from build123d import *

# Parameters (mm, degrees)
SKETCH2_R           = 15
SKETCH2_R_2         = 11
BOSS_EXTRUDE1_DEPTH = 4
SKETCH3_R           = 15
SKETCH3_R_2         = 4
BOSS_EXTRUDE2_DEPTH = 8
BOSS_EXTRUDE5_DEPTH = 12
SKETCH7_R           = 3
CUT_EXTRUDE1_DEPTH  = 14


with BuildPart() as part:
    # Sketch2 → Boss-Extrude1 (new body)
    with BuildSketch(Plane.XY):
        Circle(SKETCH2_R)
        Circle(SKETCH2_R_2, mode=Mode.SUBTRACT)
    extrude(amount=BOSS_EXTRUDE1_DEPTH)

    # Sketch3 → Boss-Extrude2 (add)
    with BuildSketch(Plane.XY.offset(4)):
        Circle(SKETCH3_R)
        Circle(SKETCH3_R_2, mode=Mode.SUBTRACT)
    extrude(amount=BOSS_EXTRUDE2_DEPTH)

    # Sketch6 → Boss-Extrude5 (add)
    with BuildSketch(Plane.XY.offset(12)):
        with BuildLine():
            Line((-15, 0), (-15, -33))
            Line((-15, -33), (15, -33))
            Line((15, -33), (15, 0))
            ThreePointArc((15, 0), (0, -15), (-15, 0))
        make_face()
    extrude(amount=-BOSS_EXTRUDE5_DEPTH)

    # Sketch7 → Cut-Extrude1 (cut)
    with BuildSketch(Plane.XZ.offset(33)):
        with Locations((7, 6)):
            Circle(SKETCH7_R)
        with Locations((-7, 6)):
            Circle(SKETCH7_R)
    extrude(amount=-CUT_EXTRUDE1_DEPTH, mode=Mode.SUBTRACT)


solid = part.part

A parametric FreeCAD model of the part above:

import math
import FreeCAD as App
import Part
import Sketcher
from FreeCAD import Vector
Q = App.Units.Quantity

doc = App.newDocument("Part")
body = doc.addObject("PartDesign::Body", "Body")

# Sketch on XY plane
sketch1 = body.newObject("Sketcher::SketchObject", "Sketch")
sketch1.AttachmentSupport = (doc.getObject("XY_Plane"), [""])
sketch1.MapMode = "FlatFace"
sketch1.addGeometry([
    Part.Circle(Vector(0, 0, 0), Vector(0, 0, 1), 15),
    Part.Circle(Vector(0, 0, 0), Vector(0, 0, 1), 11),
], False)
sketch1.addConstraint([
    Sketcher.Constraint("Coincident", 0, 3, -1, 1),
    Sketcher.Constraint("Coincident", 1, 3, -1, 1),
    Sketcher.Constraint("Diameter", 0, Q("30 mm")),
    Sketcher.Constraint("Diameter", 1, Q("22 mm")),
])
pad1 = body.newObject("PartDesign::Pad", "Pad")
pad1.Profile = sketch1
pad1.Length = 4

# Sketch on XY plane
sketch2 = body.newObject("Sketcher::SketchObject", "Sketch001")
sketch2.AttachmentSupport = (doc.getObject("XY_Plane"), [""])
sketch2.MapMode = "FlatFace"
sketch2.AttachmentOffset = App.Placement(Vector(0, 0, 4), App.Rotation())
sketch2.addGeometry([
    Part.Circle(Vector(0, 0, 0), Vector(0, 0, 1), 15),
    Part.Circle(Vector(0, 0, 0), Vector(0, 0, 1), 4),
], False)
sketch2.addConstraint([
    Sketcher.Constraint("Coincident", 0, 3, -1, 1),
    Sketcher.Constraint("Coincident", 1, 3, -1, 1),
    Sketcher.Constraint("Diameter", 0, Q("30 mm")),
    Sketcher.Constraint("Diameter", 1, Q("8 mm")),
])
pad2 = body.newObject("PartDesign::Pad", "Pad001")
pad2.Profile = sketch2
pad2.Length = 8

# Sketch on XY plane
sketch3 = body.newObject("Sketcher::SketchObject", "Sketch002")
sketch3.AttachmentSupport = (doc.getObject("XY_Plane"), [""])
sketch3.MapMode = "FlatFace"
sketch3.AttachmentOffset = App.Placement(Vector(0, 0, 12), App.Rotation())
sketch3.addGeometry([
    Part.LineSegment(Vector(-15, 0, 0), Vector(-15, -33, 0)),
    Part.LineSegment(Vector(-15, -33, 0), Vector(15, -33, 0)),
    Part.LineSegment(Vector(15, -33, 0), Vector(15, 0, 0)),
    Part.ArcOfCircle(Part.Circle(Vector(0, 0, 0), Vector(0, 0, 1), 15), math.radians(180), math.radians(360)),
], False)
sketch3.addConstraint([
    Sketcher.Constraint("Coincident", 0, 2, 1, 1),
    Sketcher.Constraint("Coincident", 1, 2, 2, 1),
    Sketcher.Constraint("Tangent", 2, 2, 3, 2),
    Sketcher.Constraint("Tangent", 3, 1, 0, 1),
    Sketcher.Constraint("Vertical", 0),
    Sketcher.Constraint("Horizontal", 1),
    Sketcher.Constraint("Vertical", 2),
    Sketcher.Constraint("Coincident", 3, 3, -1, 1),
    Sketcher.Constraint("Radius", 3, Q("15 mm")),
    Sketcher.Constraint("DistanceY", 0, 2, 0, 1, Q("33 mm")),
])
pad3 = body.newObject("PartDesign::Pad", "Pad002")
pad3.Profile = sketch3
pad3.Length = 12
pad3.Reversed = True

# Sketch on XZ plane
sketch4 = body.newObject("Sketcher::SketchObject", "Sketch003")
sketch4.AttachmentSupport = (doc.getObject("XZ_Plane"), [""])
sketch4.MapMode = "FlatFace"
sketch4.AttachmentOffset = App.Placement(Vector(0, 0, 33), App.Rotation())
sketch4.addGeometry([
    Part.Circle(Vector(7, 6, 0), Vector(0, 0, 1), 3),
    Part.Circle(Vector(-7, 6, 0), Vector(0, 0, 1), 3),
], False)
sketch4.addConstraint([
    Sketcher.Constraint("Equal", 0, 1),
    Sketcher.Constraint("Symmetric", 0, 3, 1, 3, -2),
    Sketcher.Constraint("Diameter", 0, Q("6 mm")),
    Sketcher.Constraint("DistanceX", -1, 1, 0, 3, Q("7 mm")),
    Sketcher.Constraint("DistanceY", -1, 1, 0, 3, Q("6 mm")),
])
pocket1 = body.newObject("PartDesign::Pocket", "Pocket")
pocket1.Profile = sketch4
pocket1.Length = 14

doc.recompute()
